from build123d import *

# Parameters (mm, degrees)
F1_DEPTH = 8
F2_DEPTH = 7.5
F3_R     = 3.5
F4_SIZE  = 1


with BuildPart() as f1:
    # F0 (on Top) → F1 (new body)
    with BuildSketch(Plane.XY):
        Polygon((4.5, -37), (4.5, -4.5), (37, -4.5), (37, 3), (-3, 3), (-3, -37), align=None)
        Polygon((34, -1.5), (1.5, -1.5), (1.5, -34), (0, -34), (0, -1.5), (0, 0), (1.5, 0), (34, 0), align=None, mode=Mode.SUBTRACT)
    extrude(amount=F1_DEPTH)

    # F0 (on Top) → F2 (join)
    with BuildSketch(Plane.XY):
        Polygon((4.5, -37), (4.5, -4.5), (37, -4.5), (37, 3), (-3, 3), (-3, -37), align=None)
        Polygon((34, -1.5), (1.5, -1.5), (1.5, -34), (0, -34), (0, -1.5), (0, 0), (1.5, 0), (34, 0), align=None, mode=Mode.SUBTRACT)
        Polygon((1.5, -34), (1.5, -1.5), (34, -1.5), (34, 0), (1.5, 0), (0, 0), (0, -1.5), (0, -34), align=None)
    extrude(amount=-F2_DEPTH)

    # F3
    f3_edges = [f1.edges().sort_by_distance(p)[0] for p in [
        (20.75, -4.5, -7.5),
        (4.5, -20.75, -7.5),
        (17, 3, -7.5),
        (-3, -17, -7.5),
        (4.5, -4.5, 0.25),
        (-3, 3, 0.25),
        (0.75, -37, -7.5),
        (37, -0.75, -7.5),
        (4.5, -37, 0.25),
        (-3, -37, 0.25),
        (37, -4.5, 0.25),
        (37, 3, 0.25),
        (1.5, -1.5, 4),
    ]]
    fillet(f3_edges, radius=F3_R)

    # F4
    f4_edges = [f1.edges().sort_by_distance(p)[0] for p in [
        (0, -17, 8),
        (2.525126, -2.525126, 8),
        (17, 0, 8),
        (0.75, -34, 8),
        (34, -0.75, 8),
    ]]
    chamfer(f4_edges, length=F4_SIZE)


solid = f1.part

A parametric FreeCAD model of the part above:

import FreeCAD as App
import Part
import Sketcher
Q = App.Units.Quantity


def edges_at(feature, points):
    """Names of the edges that pass closest to the given points."""
    edges = feature.Shape.Edges
    near = lambda p: min(range(len(edges)), key=lambda i: edges[i].distToShape(Part.Vertex(*p))[0])
    return sorted({f"Edge{near(p) + 1}" for p in points})


def add_polygon(sketch, points):
    """Adds a closed chain of lines whose ends are joined by coincident constraints."""
    first, n = sketch.GeometryCount, len(points)
    for a, b in zip(points, points[1:] + points[:1]):
        sketch.addGeometry(Part.LineSegment(App.Vector(*a, 0), App.Vector(*b, 0)), False)
    for i in range(n):
        sketch.addConstraint(Sketcher.Constraint("Coincident", first + i, 2, first + (i + 1) % n, 1))

doc = App.newDocument("Part")
body = doc.addObject("PartDesign::Body", "Body")

# Sketch on XY plane
sketch1 = body.newObject("Sketcher::SketchObject", "Sketch")
sketch1.AttachmentSupport = (doc.getObject("XY_Plane"), [""])
sketch1.MapMode = "FlatFace"
add_polygon(sketch1, [(4.5, -37), (4.5, -4.5), (37, -4.5), (37, 3), (-3, 3), (-3, -37)])  # lines 0-5
add_polygon(sketch1, [(34, 0), (34, -1.5), (1.5, -1.5), (1.5, -34), (0, -34), (0, 0)])  # lines 6-11
sketch1.addConstraint([
    Sketcher.Constraint("Vertical", 0),
    Sketcher.Constraint("Horizontal", 1),
    Sketcher.Constraint("Vertical", 2),
    Sketcher.Constraint("Horizontal", 3),
    Sketcher.Constraint("Vertical", 4),
    Sketcher.Constraint("Horizontal", 5),
    Sketcher.Constraint("Vertical", 6),
    Sketcher.Constraint("Horizontal", 7),
    Sketcher.Constraint("Vertical", 8),
    Sketcher.Constraint("Horizontal", 9),
    Sketcher.Constraint("Vertical", 10),
    Sketcher.Constraint("Horizontal", 11),
    Sketcher.Constraint("Coincident", 10, 2, -1, 1),
    Sketcher.Constraint("Equal", 1, 7),
    Sketcher.Constraint("Equal", 7, 0),
    Sketcher.Constraint("Equal", 5, 2),
    Sketcher.Constraint("Equal", 9, 6),
    Sketcher.Constraint("Equal", 0, 8),
    Sketcher.Constraint("DistanceX", 3, 2, 3, 1, Q("40 mm")),
    Sketcher.Constraint("DistanceX", 11, 1, 11, 2, Q("34 mm")),
    Sketcher.Constraint("DistanceX", 1, 1, 1, 2, Q("32.5 mm")),
    Sketcher.Constraint("DistanceX", -1, 1, 1, 2, Q("37 mm")),
    Sketcher.Constraint("DistanceY", -1, 1, 2, 2, Q("3 mm")),
])
pad1 = body.newObject("PartDesign::Pad", "Pad")
pad1.Profile = sketch1
pad1.Length = 8

# Sketch on XY plane
sketch2 = body.newObject("Sketcher::SketchObject", "Sketch001")
sketch2.AttachmentSupport = (doc.getObject("XY_Plane"), [""])
sketch2.MapMode = "FlatFace"
add_polygon(sketch2, [(4, -37), (4, -4), (37, -4), (37, 3), (-3, 3), (-3, -37)])  # lines 0-5
sketch2.addConstraint([
    Sketcher.Constraint("Vertical", 0),
    Sketcher.Constraint("Horizontal", 1),
    Sketcher.Constraint("Vertical", 2),
    Sketcher.Constraint("Horizontal", 3),
    Sketcher.Constraint("Vertical", 4),
    Sketcher.Constraint("Horizontal", 5),
    Sketcher.Constraint("Equal", 1, 0),
    Sketcher.Constraint("Equal", 5, 2),
    Sketcher.Constraint("DistanceX", 3, 2, 3, 1, Q("40 mm")),
    Sketcher.Constraint("DistanceX", 1, 1, 1, 2, Q("32.5 mm")),
    Sketcher.Constraint("DistanceX", -1, 1, 1, 2, Q("37 mm")),
    Sketcher.Constraint("DistanceY", -1, 1, 2, 2, Q("3 mm")),
])
pad2 = body.newObject("PartDesign::Pad", "Pad001")
pad2.Profile = sketch2
pad2.Length = 7.5
pad2.Reversed = True
doc.recompute()

fillet = body.newObject("PartDesign::Fillet", "Fillet")
fillet.Base = (pad2, edges_at(pad2, [
    (20.75, -4.5, -7.5),
    (4.5, -20.75, -7.5),
    (17, 3, -7.5),
    (-3, -17, -7.5),
    (4.5, -4.5, 0.25),
    (-3, 3, 0.25),
    (0.75, -37, -7.5),
    (37, -0.75, -7.5),
    (4.5, -37, 0.25),
    (-3, -37, 0.25),
    (37, -4.5, 0.25),
    (37, 3, 0.25),
    (1.5, -1.5, 4),
]))
fillet.Radius = 3.5
doc.recompute()

chamfer = body.newObject("PartDesign::Chamfer", "Chamfer")
chamfer.Base = (fillet, edges_at(fillet, [
    (0, -17, 8),
    (2.525, -2.525, 8),
    (17, 0, 8),
    (0.75, -34, 8),
    (34, -0.75, 8),
]))
chamfer.Size = 1

doc.recompute()
